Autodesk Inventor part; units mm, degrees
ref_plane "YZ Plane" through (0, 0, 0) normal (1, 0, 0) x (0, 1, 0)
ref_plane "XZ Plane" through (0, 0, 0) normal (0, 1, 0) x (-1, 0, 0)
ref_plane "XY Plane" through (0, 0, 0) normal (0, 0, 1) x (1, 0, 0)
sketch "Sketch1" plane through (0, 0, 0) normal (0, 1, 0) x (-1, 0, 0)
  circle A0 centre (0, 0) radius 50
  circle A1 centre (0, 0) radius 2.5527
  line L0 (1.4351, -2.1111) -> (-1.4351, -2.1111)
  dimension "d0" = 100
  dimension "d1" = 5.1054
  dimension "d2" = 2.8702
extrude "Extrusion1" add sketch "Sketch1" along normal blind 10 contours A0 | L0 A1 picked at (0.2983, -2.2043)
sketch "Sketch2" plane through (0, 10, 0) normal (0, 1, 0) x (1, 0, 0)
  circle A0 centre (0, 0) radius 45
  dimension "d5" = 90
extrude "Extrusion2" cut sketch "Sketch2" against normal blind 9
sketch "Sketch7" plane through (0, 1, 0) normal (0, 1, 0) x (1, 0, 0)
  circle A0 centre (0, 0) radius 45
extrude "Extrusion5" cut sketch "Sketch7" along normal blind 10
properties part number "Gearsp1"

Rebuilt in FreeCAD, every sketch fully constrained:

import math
import FreeCAD as App
import Part
import Sketcher
from FreeCAD import Vector
Q = App.Units.Quantity

doc = App.newDocument("Part")
body = doc.addObject("PartDesign::Body", "Body")

# Sketch on XZ plane
sketch1 = body.newObject("Sketcher::SketchObject", "Sketch")
sketch1.AttachmentSupport = (doc.getObject("XZ_Plane"), [""])
sketch1.MapMode = "FlatFace"
sketch1.addGeometry(Part.Circle(Vector(0, 0, 0), Vector(0, 0, 1), 50), False)
sketch1.addGeometry(Part.ArcOfCircle(Part.Circle(Vector(0, 0, 0), Vector(0, 0, 1), 2.5527), math.radians(-55.792613), math.radians(235.792613)), False)
sketch1.addGeometry(Part.LineSegment(Vector(1.4351, -2.1111, 0), Vector(-1.4351, -2.1111, 0)), False)
sketch1.addConstraint(Sketcher.Constraint("Coincident", 1, 1, 2, 1))
sketch1.addConstraint(Sketcher.Constraint("Coincident", 2, 2, 1, 2))
sketch1.addConstraint(Sketcher.Constraint("Horizontal", 2))
sketch1.addConstraint(Sketcher.Constraint("Coincident", 0, 3, -1, 1))
sketch1.addConstraint(Sketcher.Constraint("Coincident", 1, 3, -1, 1))
sketch1.addConstraint(Sketcher.Constraint("Diameter", 0, Q("3.937 in")))
sketch1.addConstraint(Sketcher.Constraint("Radius", 1, Q("0.1005 in")))
sketch1.addConstraint(Sketcher.Constraint("DistanceX", 2, 2, 2, 1, Q("0.113 in")))
pad1 = body.newObject("PartDesign::Pad", "Pad")
pad1.Profile = sketch1
pad1.Length = Q("0.3937008 in")
pad1.Reversed = True

# Sketch on XZ plane
sketch2 = body.newObject("Sketcher::SketchObject", "Sketch001")
sketch2.AttachmentSupport = (doc.getObject("XZ_Plane"), [""])
sketch2.MapMode = "FlatFace"
sketch2.AttachmentOffset = App.Placement(Vector(0, 0, -0.3937008 * 25.4), App.Rotation())
sketch2.addGeometry(Part.Circle(Vector(0, 0, 0), Vector(0, 0, 1), 45), False)
sketch2.addConstraint(Sketcher.Constraint("Coincident", 0, 3, -1, 1))
sketch2.addConstraint(Sketcher.Constraint("Diameter", 0, Q("3.5433 in")))
pocket1 = body.newObject("PartDesign::Pocket", "Pocket")
pocket1.Profile = sketch2
pocket1.Length = 9
pocket1.Reversed = True

# Sketch on XZ plane
sketch3 = body.newObject("Sketcher::SketchObject", "Sketch002")
sketch3.AttachmentSupport = (doc.getObject("XZ_Plane"), [""])
sketch3.MapMode = "FlatFace"
sketch3.AttachmentOffset = App.Placement(Vector(0, 0, -1), App.Rotation())
sketch3.addGeometry(Part.Circle(Vector(0, 0, 0), Vector(0, 0, 1), 45), False)
sketch3.addConstraint(Sketcher.Constraint("Coincident", 0, 3, -1, 1))
sketch3.addConstraint(Sketcher.Constraint("Diameter", 0, Q("3.5433 in")))
pocket2 = body.newObject("PartDesign::Pocket", "Pocket001")
pocket2.Profile = sketch3
pocket2.Length = Q("0.3937008 in")

doc.recompute()
